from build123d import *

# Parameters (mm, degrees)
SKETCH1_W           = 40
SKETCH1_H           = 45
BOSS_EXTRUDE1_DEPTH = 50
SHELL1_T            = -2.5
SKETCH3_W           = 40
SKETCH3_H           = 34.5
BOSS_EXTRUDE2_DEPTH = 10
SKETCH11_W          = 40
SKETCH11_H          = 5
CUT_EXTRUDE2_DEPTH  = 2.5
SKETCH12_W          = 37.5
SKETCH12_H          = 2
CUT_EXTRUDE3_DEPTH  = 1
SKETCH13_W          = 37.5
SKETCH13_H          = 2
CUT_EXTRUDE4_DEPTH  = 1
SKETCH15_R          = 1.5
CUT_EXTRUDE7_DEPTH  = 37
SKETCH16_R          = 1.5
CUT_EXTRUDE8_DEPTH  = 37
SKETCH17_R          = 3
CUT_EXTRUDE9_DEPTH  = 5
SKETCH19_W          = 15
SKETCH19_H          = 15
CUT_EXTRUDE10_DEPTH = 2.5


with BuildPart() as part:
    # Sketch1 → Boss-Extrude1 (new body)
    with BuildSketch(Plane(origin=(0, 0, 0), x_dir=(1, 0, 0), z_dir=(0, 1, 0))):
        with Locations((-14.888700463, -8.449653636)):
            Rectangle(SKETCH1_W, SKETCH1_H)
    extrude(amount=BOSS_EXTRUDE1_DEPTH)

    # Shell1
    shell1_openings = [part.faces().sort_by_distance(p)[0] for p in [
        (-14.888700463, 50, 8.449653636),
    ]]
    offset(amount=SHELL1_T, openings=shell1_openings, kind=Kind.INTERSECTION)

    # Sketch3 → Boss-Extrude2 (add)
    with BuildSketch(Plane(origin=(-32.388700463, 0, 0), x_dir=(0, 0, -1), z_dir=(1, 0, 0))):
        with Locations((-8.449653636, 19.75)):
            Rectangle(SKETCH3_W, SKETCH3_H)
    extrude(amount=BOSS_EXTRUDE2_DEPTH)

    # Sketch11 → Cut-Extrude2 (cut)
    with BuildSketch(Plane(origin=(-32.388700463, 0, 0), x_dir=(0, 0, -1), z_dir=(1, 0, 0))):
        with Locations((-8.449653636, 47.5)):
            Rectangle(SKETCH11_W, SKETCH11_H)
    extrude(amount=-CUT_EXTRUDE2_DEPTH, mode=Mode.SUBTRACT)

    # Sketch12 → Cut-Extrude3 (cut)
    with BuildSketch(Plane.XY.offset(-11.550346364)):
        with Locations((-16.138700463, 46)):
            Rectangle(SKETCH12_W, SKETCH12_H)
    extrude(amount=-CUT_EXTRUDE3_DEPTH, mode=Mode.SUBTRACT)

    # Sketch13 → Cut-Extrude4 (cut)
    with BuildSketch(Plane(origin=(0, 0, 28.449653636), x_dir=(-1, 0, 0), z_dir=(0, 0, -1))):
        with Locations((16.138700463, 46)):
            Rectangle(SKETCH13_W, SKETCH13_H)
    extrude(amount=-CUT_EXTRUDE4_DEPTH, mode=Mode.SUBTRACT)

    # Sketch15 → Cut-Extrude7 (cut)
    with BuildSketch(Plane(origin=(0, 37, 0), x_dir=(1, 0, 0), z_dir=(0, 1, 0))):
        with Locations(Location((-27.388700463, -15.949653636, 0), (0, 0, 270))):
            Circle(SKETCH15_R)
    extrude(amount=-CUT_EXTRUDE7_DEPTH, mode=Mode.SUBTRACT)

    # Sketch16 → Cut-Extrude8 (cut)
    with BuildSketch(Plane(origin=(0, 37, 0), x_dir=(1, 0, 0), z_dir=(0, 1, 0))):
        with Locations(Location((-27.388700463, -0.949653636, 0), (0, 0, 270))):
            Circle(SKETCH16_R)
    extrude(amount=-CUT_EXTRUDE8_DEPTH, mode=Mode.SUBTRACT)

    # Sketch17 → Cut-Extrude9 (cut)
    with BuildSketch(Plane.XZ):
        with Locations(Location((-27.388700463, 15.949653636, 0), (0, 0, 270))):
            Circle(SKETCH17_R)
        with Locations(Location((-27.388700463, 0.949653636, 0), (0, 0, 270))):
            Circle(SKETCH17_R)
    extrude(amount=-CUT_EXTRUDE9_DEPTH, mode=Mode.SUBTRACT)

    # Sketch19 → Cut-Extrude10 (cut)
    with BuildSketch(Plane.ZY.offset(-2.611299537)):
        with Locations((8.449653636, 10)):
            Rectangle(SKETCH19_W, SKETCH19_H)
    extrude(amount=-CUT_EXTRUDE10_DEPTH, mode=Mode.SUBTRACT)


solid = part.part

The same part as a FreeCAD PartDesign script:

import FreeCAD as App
import Part
import Sketcher
Q = App.Units.Quantity


def faces_at(feature, points):
    """Names of the faces that lie closest to the given points."""
    faces = feature.Shape.Faces
    near = lambda p: min(range(len(faces)), key=lambda i: faces[i].distToShape(Part.Vertex(*p))[0])
    return sorted({f"Face{near(p) + 1}" for p in points})


def add_polygon(sketch, points):
    """Adds a closed chain of lines whose ends are joined by coincident constraints."""
    first, n = sketch.GeometryCount, len(points)
    for a, b in zip(points, points[1:] + points[:1]):
        sketch.addGeometry(Part.LineSegment(App.Vector(*a, 0), App.Vector(*b, 0)), False)
    for i in range(n):
        sketch.addConstraint(Sketcher.Constraint("Coincident", first + i, 2, first + (i + 1) % n, 1))

doc = App.newDocument("Part")
body = doc.addObject("PartDesign::Body", "Body")

# Sketch on XZ plane
sketch1 = body.newObject("Sketcher::SketchObject", "Sketch")
sketch1.AttachmentSupport = (doc.getObject("XZ_Plane"), [""])
sketch1.MapMode = "FlatFace"
add_polygon(sketch1, [(-35, -14), (-35, 31), (5, 31), (5, -14)])  # lines 0-3
sketch1.addConstraint([
    Sketcher.Constraint("Vertical", 0),
    Sketcher.Constraint("Horizontal", 1),
    Sketcher.Constraint("Vertical", 2),
    Sketcher.Constraint("Horizontal", 3),
    Sketcher.Constraint("DistanceX", 1, 1, 1, 2, Q("40 mm")),
    Sketcher.Constraint("DistanceY", 0, 1, 0, 2, Q("45 mm")),
    Sketcher.Constraint("DistanceX", 0, 2, -1, 1, Q("34.8887 mm")),
    Sketcher.Constraint("DistanceY", -1, 1, 0, 2, Q("30.949654 mm")),
])
pad1 = body.newObject("PartDesign::Pad", "Pad")
pad1.Profile = sketch1
pad1.Length = 50
pad1.Reversed = True
doc.recompute()

thickness = body.newObject("PartDesign::Thickness", "Thickness")
thickness.Base = (pad1, faces_at(pad1, [(-14.889, 50, 8.45)]))
thickness.Value = 2.5
thickness.Reversed = True
thickness.Join = "Intersection"

# Sketch on YZ plane
sketch2 = body.newObject("Sketcher::SketchObject", "Sketch001")
sketch2.AttachmentSupport = (doc.getObject("YZ_Plane"), [""])
sketch2.MapMode = "FlatFace"
sketch2.AttachmentOffset = App.Placement(App.Vector(0, 0, -32.3887), App.Rotation())
add_polygon(sketch2, [(37, 28), (2, 28), (2, -12), (37, -12)])  # lines 0-3
sketch2.addConstraint([
    Sketcher.Constraint("Horizontal", 0),
    Sketcher.Constraint("Vertical", 1),
    Sketcher.Constraint("Horizontal", 2),
    Sketcher.Constraint("Vertical", 3),
    Sketcher.Constraint("DistanceY", 1, 2, 1, 1, Q("40 mm")),
    Sketcher.Constraint("DistanceX", 0, 2, 0, 1, Q("34.5 mm")),
    Sketcher.Constraint("DistanceX", -1, 1, 2, 2, Q("37 mm")),
    Sketcher.Constraint("DistanceY", -1, 1, 0, 2, Q("28.449654 mm")),
])
pad2 = body.newObject("PartDesign::Pad", "Pad001")
pad2.Profile = sketch2
pad2.Length = 10

# Sketch on YZ plane
sketch3 = body.newObject("Sketcher::SketchObject", "Sketch002")
sketch3.AttachmentSupport = (doc.getObject("YZ_Plane"), [""])
sketch3.MapMode = "FlatFace"
sketch3.AttachmentOffset = App.Placement(App.Vector(0, 0, -32.3887), App.Rotation())
add_polygon(sketch3, [(50, 28), (45, 28), (45, -12), (50, -12)])  # lines 0-3
sketch3.addConstraint([
    Sketcher.Constraint("Horizontal", 0),
    Sketcher.Constraint("Vertical", 1),
    Sketcher.Constraint("Horizontal", 2),
    Sketcher.Constraint("Vertical", 3),
    Sketcher.Constraint("DistanceX", 0, 2, 0, 1, Q("5 mm")),
    Sketcher.Constraint("DistanceY", 1, 2, 1, 1, Q("40 mm")),
    Sketcher.Constraint("DistanceX", -1, 1, 0, 2, Q("45 mm")),
    Sketcher.Constraint("DistanceY", -1, 1, 0, 2, Q("28.449654 mm")),
])
pocket1 = body.newObject("PartDesign::Pocket", "Pocket")
pocket1.Profile = sketch3
pocket1.Length = 2.5

# Sketch on XY plane
sketch4 = body.newObject("Sketcher::SketchObject", "Sketch003")
sketch4.AttachmentSupport = (doc.getObject("XY_Plane"), [""])
sketch4.MapMode = "FlatFace"
sketch4.AttachmentOffset = App.Placement(App.Vector(0, 0, -11.550346), App.Rotation())
add_polygon(sketch4, [(-34.9, 47), (-34.9, 45), (2.6, 45), (2.6, 47)])  # lines 0-3
sketch4.addConstraint([
    Sketcher.Constraint("Vertical", 0),
    Sketcher.Constraint("Horizontal", 1),
    Sketcher.Constraint("Vertical", 2),
    Sketcher.Constraint("Horizontal", 3),
    Sketcher.Constraint("DistanceY", 0, 2, 0, 1, Q("2 mm")),
    Sketcher.Constraint("DistanceX", 1, 1, 1, 2, Q("37.5 mm")),
    Sketcher.Constraint("DistanceY", -1, 1, 0, 2, Q("45 mm")),
    Sketcher.Constraint("DistanceX", 0, 2, -1, 1, Q("34.8887 mm")),
])
pocket2 = body.newObject("PartDesign::Pocket", "Pocket001")
pocket2.Profile = sketch4
pocket2.Length = 1

# Sketch on XY plane
sketch5 = body.newObject("Sketcher::SketchObject", "Sketch004")
sketch5.AttachmentSupport = (doc.getObject("XY_Plane"), [""])
sketch5.MapMode = "FlatFace"
sketch5.AttachmentOffset = App.Placement(App.Vector(0, 0, 28.449654), App.Rotation())
add_polygon(sketch5, [(2.6, 47), (2.6, 45), (-34.9, 45), (-34.9, 47)])  # lines 0-3
sketch5.addConstraint([
    Sketcher.Constraint("Vertical", 0),
    Sketcher.Constraint("Horizontal", 1),
    Sketcher.Constraint("Vertical", 2),
    Sketcher.Constraint("Horizontal", 3),
    Sketcher.Constraint("DistanceY", 0, 2, 0, 1, Q("2 mm")),
    Sketcher.Constraint("DistanceX", 1, 2, 1, 1, Q("37.5 mm")),
    Sketcher.Constraint("DistanceY", -1, 1, 0, 2, Q("45 mm")),
    Sketcher.Constraint("DistanceX", -1, 1, 0, 2, Q("2.6113 mm")),
])
pocket3 = body.newObject("PartDesign::Pocket", "Pocket002")
pocket3.Profile = sketch5
pocket3.Length = 1
pocket3.Reversed = True

# Sketch on XZ plane
sketch6 = body.newObject("Sketcher::SketchObject", "Sketch005")
sketch6.AttachmentSupport = (doc.getObject("XZ_Plane"), [""])
sketch6.MapMode = "FlatFace"
sketch6.AttachmentOffset = App.Placement(App.Vector(0, 0, -37), App.Rotation())
sketch6.addGeometry(Part.Circle(App.Vector(-27.4, 15.9, 0), App.Vector(0, 0, 1), 1.5), False)
sketch6.addConstraint([
    Sketcher.Constraint("Diameter", 0, Q("3 mm")),
    Sketcher.Constraint("DistanceX", 0, 3, -1, 1, Q("27.3887 mm")),
    Sketcher.Constraint("DistanceY", -1, 1, 0, 3, Q("15.949654 mm")),
])
pocket4 = body.newObject("PartDesign::Pocket", "Pocket003")
pocket4.Profile = sketch6
pocket4.Length = 37
pocket4.Reversed = True

# Sketch on XZ plane
sketch7 = body.newObject("Sketcher::SketchObject", "Sketch006")
sketch7.AttachmentSupport = (doc.getObject("XZ_Plane"), [""])
sketch7.MapMode = "FlatFace"
sketch7.AttachmentOffset = App.Placement(App.Vector(0, 0, -37), App.Rotation())
sketch7.addGeometry(Part.Circle(App.Vector(-27.4, 0.9, 0), App.Vector(0, 0, 1), 1.5), False)
sketch7.addConstraint([
    Sketcher.Constraint("Diameter", 0, Q("3 mm")),
    Sketcher.Constraint("DistanceX", 0, 3, -1, 1, Q("27.3887 mm")),
    Sketcher.Constraint("DistanceY", -1, 1, 0, 3, Q("0.949654 mm")),
])
pocket5 = body.newObject("PartDesign::Pocket", "Pocket004")
pocket5.Profile = sketch7
pocket5.Length = 37
pocket5.Reversed = True

# Sketch on XZ plane
sketch8 = body.newObject("Sketcher::SketchObject", "Sketch007")
sketch8.AttachmentSupport = (doc.getObject("XZ_Plane"), [""])
sketch8.MapMode = "FlatFace"
sketch8.addGeometry([
    Part.Circle(App.Vector(-27.4, 15.9, 0), App.Vector(0, 0, 1), 3),
    Part.Circle(App.Vector(-27.4, 0.9, 0), App.Vector(0, 0, 1), 3),
], False)
sketch8.addConstraint([
    Sketcher.Constraint("Equal", 0, 1),
    Sketcher.Constraint("Vertical", 0, 3, 1, 3),
    Sketcher.Constraint("Diameter", 0, Q("6 mm")),
    Sketcher.Constraint("DistanceY", 1, 3, 0, 3, Q("15 mm")),
    Sketcher.Constraint("DistanceX", 0, 3, -1, 1, Q("27.3887 mm")),
    Sketcher.Constraint("DistanceY", -1, 1, 0, 3, Q("15.949654 mm")),
])
pocket6 = body.newObject("PartDesign::Pocket", "Pocket005")
pocket6.Profile = sketch8
pocket6.Length = 5

# Sketch on YZ plane
sketch9 = body.newObject("Sketcher::SketchObject", "Sketch008")
sketch9.AttachmentSupport = (doc.getObject("YZ_Plane"), [""])
sketch9.MapMode = "FlatFace"
sketch9.AttachmentOffset = App.Placement(App.Vector(0, 0, 2.6113), App.Rotation())
add_polygon(sketch9, [(18, 1), (2, 1), (2, 16), (18, 16)])  # lines 0-3
sketch9.addConstraint([
    Sketcher.Constraint("Horizontal", 0),
    Sketcher.Constraint("Vertical", 1),
    Sketcher.Constraint("Horizontal", 2),
    Sketcher.Constraint("Vertical", 3),
    Sketcher.Constraint("Equal", 2, 1),
    Sketcher.Constraint("DistanceX", 0, 2, 0, 1, Q("15 mm")),
    Sketcher.Constraint("DistanceX", -1, 1, 0, 2, Q("2.5 mm")),
    Sketcher.Constraint("DistanceY", -1, 1, 0, 2, Q("0.949654 mm")),
])
pocket7 = body.newObject("PartDesign::Pocket", "Pocket006")
pocket7.Profile = sketch9
pocket7.Length = 2.5
pocket7.Reversed = True

doc.recompute()
